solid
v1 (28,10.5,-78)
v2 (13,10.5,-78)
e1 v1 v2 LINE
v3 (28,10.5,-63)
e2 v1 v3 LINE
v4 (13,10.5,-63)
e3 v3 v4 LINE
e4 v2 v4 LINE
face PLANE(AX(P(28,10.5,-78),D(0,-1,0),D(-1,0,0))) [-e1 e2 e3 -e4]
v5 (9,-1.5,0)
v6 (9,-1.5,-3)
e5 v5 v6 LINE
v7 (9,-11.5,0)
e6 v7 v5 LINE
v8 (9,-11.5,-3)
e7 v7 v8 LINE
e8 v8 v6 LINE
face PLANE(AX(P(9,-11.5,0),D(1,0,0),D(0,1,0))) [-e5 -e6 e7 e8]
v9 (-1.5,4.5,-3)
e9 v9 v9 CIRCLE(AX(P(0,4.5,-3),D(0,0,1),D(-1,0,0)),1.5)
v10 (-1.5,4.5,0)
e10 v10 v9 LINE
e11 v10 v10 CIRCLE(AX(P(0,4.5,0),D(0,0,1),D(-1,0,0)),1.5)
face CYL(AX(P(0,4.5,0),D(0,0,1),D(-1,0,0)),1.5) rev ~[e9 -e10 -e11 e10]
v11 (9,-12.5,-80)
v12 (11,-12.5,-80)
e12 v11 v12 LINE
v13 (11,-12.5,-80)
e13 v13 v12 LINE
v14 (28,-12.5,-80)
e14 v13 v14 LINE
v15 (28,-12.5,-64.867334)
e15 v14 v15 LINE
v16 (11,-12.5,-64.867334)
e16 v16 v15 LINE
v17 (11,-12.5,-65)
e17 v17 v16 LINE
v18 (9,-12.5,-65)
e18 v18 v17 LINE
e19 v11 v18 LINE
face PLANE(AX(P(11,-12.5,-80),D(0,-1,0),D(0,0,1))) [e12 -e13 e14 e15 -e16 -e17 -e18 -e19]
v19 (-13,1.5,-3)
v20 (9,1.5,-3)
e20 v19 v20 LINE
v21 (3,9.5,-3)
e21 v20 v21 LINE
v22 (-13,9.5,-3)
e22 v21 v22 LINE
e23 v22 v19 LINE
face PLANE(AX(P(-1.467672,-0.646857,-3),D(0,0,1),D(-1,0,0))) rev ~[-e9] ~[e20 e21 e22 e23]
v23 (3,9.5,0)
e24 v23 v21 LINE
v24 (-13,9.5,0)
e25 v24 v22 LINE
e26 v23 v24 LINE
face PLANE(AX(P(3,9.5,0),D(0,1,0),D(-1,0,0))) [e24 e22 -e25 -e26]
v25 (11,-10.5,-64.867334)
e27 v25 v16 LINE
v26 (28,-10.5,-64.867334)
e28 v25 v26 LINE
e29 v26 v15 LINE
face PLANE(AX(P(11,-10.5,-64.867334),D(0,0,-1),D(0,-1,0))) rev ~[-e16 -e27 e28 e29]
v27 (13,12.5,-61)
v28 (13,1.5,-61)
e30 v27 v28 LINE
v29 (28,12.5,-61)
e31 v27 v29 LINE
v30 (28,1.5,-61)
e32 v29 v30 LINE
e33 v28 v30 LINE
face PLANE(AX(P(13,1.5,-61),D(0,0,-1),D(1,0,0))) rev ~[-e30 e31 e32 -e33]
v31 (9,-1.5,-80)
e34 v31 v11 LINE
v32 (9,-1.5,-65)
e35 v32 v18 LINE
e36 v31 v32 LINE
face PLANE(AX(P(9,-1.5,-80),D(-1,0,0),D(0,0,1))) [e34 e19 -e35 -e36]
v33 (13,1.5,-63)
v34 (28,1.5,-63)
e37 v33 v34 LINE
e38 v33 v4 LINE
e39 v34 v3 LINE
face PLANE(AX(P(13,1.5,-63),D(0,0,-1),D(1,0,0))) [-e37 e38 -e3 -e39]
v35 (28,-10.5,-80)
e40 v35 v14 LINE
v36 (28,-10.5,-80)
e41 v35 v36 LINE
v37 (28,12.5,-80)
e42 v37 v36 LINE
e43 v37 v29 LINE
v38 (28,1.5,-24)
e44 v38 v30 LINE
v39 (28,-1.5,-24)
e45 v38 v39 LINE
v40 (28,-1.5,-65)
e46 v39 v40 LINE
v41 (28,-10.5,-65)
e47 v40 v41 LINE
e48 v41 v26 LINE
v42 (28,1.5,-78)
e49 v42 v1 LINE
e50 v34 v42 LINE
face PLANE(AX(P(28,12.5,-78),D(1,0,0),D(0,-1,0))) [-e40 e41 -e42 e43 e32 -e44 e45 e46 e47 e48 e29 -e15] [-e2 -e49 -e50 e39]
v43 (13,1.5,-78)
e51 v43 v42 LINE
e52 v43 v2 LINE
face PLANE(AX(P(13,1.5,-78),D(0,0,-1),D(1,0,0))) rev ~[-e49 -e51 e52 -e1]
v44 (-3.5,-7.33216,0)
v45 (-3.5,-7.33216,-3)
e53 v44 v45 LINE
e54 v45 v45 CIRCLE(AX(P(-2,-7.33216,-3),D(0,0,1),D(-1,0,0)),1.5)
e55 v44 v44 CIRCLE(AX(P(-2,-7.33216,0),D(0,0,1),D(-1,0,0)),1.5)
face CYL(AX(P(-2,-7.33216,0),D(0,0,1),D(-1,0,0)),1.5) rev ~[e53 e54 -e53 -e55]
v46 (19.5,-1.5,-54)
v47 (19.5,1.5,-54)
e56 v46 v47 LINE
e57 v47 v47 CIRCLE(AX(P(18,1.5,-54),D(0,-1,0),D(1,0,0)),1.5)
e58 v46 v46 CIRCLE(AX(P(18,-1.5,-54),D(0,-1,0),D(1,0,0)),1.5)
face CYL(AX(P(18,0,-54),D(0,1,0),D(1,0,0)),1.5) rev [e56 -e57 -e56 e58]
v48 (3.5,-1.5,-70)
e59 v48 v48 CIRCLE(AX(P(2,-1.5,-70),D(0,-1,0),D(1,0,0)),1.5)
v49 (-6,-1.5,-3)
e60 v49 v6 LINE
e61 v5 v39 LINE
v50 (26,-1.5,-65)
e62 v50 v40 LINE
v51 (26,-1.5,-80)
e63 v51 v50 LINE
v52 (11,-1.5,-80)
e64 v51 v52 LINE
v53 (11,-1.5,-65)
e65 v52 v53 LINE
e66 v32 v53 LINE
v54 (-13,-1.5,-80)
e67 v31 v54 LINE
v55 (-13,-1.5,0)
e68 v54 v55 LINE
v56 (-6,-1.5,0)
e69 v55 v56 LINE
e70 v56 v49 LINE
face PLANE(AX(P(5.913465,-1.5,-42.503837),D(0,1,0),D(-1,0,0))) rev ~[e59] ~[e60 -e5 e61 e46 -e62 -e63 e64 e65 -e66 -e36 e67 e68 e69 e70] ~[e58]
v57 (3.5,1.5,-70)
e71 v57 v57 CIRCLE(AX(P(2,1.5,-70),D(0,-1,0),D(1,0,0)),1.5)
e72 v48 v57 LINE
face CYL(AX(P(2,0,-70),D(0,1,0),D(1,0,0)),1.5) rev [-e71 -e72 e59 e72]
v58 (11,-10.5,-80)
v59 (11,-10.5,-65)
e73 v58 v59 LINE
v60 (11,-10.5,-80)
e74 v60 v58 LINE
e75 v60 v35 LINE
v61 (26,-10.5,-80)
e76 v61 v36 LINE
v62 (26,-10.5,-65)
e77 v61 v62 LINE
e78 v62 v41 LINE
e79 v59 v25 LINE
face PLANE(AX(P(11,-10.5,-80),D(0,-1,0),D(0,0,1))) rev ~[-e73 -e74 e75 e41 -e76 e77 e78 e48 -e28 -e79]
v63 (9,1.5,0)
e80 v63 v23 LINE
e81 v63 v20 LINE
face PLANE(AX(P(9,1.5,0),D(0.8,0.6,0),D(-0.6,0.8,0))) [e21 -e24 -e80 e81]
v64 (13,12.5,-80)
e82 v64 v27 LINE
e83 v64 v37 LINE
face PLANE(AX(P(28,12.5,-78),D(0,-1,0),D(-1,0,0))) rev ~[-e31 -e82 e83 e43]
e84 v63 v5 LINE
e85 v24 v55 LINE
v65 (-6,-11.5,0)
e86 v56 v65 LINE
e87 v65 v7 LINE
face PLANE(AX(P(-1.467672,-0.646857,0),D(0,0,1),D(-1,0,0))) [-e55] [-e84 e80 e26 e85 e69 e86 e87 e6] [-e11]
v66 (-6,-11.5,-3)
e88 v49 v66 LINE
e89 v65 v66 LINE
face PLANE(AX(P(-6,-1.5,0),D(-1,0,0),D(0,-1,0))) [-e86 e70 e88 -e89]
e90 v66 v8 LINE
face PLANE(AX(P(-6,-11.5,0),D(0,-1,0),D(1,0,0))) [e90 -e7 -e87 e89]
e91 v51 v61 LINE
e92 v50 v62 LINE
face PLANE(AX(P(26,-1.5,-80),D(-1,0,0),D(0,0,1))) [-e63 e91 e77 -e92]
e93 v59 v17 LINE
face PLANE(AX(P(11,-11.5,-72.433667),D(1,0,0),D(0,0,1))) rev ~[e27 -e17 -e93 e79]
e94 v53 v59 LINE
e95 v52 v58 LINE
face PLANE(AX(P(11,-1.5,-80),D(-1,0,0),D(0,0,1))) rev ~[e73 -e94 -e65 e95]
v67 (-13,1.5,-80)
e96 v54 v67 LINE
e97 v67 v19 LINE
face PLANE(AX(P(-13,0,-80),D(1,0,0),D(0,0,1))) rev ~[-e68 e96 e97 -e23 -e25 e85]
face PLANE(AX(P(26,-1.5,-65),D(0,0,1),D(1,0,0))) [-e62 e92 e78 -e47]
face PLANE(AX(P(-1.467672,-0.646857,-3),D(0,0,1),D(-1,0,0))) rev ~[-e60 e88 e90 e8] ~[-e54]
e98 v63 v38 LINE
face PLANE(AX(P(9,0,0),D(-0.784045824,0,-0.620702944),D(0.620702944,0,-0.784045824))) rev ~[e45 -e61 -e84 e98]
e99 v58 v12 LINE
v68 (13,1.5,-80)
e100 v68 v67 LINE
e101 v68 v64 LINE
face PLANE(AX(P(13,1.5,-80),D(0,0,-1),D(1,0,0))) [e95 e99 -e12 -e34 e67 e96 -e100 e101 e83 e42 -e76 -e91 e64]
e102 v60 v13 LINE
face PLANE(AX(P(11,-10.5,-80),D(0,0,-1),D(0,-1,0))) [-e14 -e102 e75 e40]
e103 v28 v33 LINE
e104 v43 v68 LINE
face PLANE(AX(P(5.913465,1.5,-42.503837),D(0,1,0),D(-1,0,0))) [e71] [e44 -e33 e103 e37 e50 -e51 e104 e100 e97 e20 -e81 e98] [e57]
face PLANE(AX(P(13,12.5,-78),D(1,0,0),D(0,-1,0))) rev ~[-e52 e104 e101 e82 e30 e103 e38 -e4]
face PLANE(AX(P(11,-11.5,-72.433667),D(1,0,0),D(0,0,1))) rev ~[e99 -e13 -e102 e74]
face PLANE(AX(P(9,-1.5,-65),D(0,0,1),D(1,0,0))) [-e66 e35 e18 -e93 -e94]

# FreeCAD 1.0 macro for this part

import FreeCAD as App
import Part
import Sketcher

V = App.Vector

doc = App.newDocument("Part")
body = doc.addObject("PartDesign::Body", "Body")

sketch1 = body.newObject("Sketcher::SketchObject", "Sketch")
sketch1.AttachmentSupport = (doc.getObject("XZ_Plane"), [""])
sketch1.MapMode = "FlatFace"
sketch1.addGeometry([
    Part.LineSegment(V(28, -80, 0), V(28, -24, 0)),
    Part.LineSegment(V(28, -24, 0), V(9, 0, 0)),
    Part.LineSegment(V(9, 0, 0), V(-13, 0, 0)),
    Part.LineSegment(V(-13, 0, 0), V(-13, -80, 0)),
    Part.LineSegment(V(-13, -80, 0), V(28, -80, 0)),
    Part.Circle(V(2, -70, 0), V(0, 0, 1), 1.5),
    Part.Circle(V(18, -54, 0), V(0, 0, 1), 1.5),
], False)
sketch1.addConstraint([
    Sketcher.Constraint("Coincident", 0, 2, 1, 1),
    Sketcher.Constraint("Coincident", 1, 2, 2, 1),
    Sketcher.Constraint("Coincident", 2, 2, 3, 1),
    Sketcher.Constraint("Coincident", 3, 2, 4, 1),
    Sketcher.Constraint("Coincident", 4, 2, 0, 1),
    Sketcher.Constraint("Vertical", 0),
    Sketcher.Constraint("Horizontal", 2),
    Sketcher.Constraint("Vertical", 3),
    Sketcher.Constraint("Horizontal", 4),
    Sketcher.Constraint("Equal", 5, 6),
    Sketcher.Constraint("PointOnObject", 1, 2, -1),
    Sketcher.Constraint("Diameter", 5, 3.0),
    Sketcher.Constraint("DistanceX", 2, 2, 2, 1, 22.0),
    Sketcher.Constraint("DistanceX", 4, 1, 4, 2, 41.0),
    Sketcher.Constraint("DistanceY", 0, 1, 0, 2, 56.0),
    Sketcher.Constraint("DistanceY", 3, 2, 3, 1, 80.0),
    Sketcher.Constraint("DistanceX", -1, 1, 5, 3, 2.0),
    Sketcher.Constraint("DistanceY", 5, 3, -1, 1, 70.0),
    Sketcher.Constraint("DistanceX", -1, 1, 6, 3, 18.0),
    Sketcher.Constraint("DistanceY", 6, 3, -1, 1, 54.0),
    Sketcher.Constraint("DistanceX", -1, 1, 0, 2, 28.0),
])
pad1 = body.newObject("PartDesign::Pad", "Pad")
pad1.Profile = sketch1
pad1.Length = 3
pad1.Midplane = True

sketch2 = body.newObject("Sketcher::SketchObject", "Sketch001")
sketch2.AttachmentSupport = (doc.getObject("XY_Plane"), [""])
sketch2.MapMode = "FlatFace"
sketch2.addGeometry([
    Part.LineSegment(V(9, 1.5, 0), V(3, 9.5, 0)),
    Part.LineSegment(V(3, 9.5, 0), V(-13, 9.5, 0)),
    Part.LineSegment(V(-13, 9.5, 0), V(-13, 1.5, 0)),
    Part.LineSegment(V(-13, 1.5, 0), V(-6, -1.5, 0)),
    Part.LineSegment(V(-6, -1.5, 0), V(-6, -11.5, 0)),
    Part.LineSegment(V(-6, -11.5, 0), V(9, -11.5, 0)),
    Part.LineSegment(V(9, -11.5, 0), V(9, 1.5, 0)),
    Part.Circle(V(0, 4.5, 0), V(0, 0, 1), 1.5),
    Part.Circle(V(-2, -7.33216, 0), V(0, 0, 1), 1.5),
], False)
sketch2.addConstraint([
    Sketcher.Constraint("Coincident", 0, 2, 1, 1),
    Sketcher.Constraint("Coincident", 1, 2, 2, 1),
    Sketcher.Constraint("Coincident", 2, 2, 3, 1),
    Sketcher.Constraint("Coincident", 3, 2, 4, 1),
    Sketcher.Constraint("Coincident", 4, 2, 5, 1),
    Sketcher.Constraint("Coincident", 5, 2, 6, 1),
    Sketcher.Constraint("Coincident", 6, 2, 0, 1),
    Sketcher.Constraint("Horizontal", 1),
    Sketcher.Constraint("Vertical", 2),
    Sketcher.Constraint("Vertical", 4),
    Sketcher.Constraint("Horizontal", 5),
    Sketcher.Constraint("Vertical", 6),
    Sketcher.Constraint("Equal", 7, 8),
    Sketcher.Constraint("PointOnObject", 7, 3, -2),
    Sketcher.Constraint("Horizontal", 2, 2, 6, 2),
    Sketcher.Constraint("Diameter", 7, 3.0),
    Sketcher.Constraint("DistanceX", 1, 2, 1, 1, 16.0),
    Sketcher.Constraint("DistanceX", 5, 1, 5, 2, 15.0),
    Sketcher.Constraint("DistanceY", 2, 2, 2, 1, 8.0),
    Sketcher.Constraint("DistanceY", 4, 2, 4, 1, 10.0),
    Sketcher.Constraint("DistanceY", 6, 1, 6, 2, 13.0),
    Sketcher.Constraint("Distance", 0, 10.0),
    Sketcher.Constraint("DistanceX", 8, 3, -1, 1, 2.0),
    Sketcher.Constraint("DistanceX", -1, 1, 0, 2, 3.0),
    Sketcher.Constraint("DistanceY", 7, 3, 0, 2, 5.0),
    Sketcher.Constraint("DistanceY", -1, 1, 7, 3, 4.5),
    Sketcher.Constraint("DistanceY", 8, 3, -1, 1, 7.33216),
])
pad2 = body.newObject("PartDesign::Pad", "Pad001")
pad2.Profile = sketch2
pad2.Length = 3
pad2.Reversed = True

sketch3 = body.newObject("Sketcher::SketchObject", "Sketch002")
sketch3.AttachmentSupport = (doc.getObject("XZ_Plane"), [""])
sketch3.MapMode = "FlatFace"
sketch3.AttachmentOffset = App.Placement(V(0, 0, 1.5), App.Rotation())
sketch3.addGeometry([
    Part.LineSegment(V(26, -65, 0), V(26, -80, 0)),
    Part.LineSegment(V(26, -80, 0), V(28, -80, 0)),
    Part.LineSegment(V(28, -80, 0), V(28, -65, 0)),
    Part.LineSegment(V(28, -65, 0), V(26, -65, 0)),
    Part.LineSegment(V(9, -65, 0), V(9, -80, 0)),
    Part.LineSegment(V(9, -80, 0), V(11, -80, 0)),
    Part.LineSegment(V(11, -80, 0), V(11, -65, 0)),
    Part.LineSegment(V(11, -65, 0), V(9, -65, 0)),
], False)
sketch3.addConstraint([
    Sketcher.Constraint("Coincident", 0, 2, 1, 1),
    Sketcher.Constraint("Coincident", 1, 2, 2, 1),
    Sketcher.Constraint("Coincident", 2, 2, 3, 1),
    Sketcher.Constraint("Coincident", 3, 2, 0, 1),
    Sketcher.Constraint("Coincident", 4, 2, 5, 1),
    Sketcher.Constraint("Coincident", 5, 2, 6, 1),
    Sketcher.Constraint("Coincident", 6, 2, 7, 1),
    Sketcher.Constraint("Coincident", 7, 2, 4, 1),
    Sketcher.Constraint("Vertical", 0),
    Sketcher.Constraint("Horizontal", 1),
    Sketcher.Constraint("Vertical", 2),
    Sketcher.Constraint("Horizontal", 3),
    Sketcher.Constraint("Vertical", 4),
    Sketcher.Constraint("Horizontal", 5),
    Sketcher.Constraint("Vertical", 6),
    Sketcher.Constraint("Horizontal", 7),
    Sketcher.Constraint("Horizontal", 1, 2, 4, 2),
    Sketcher.Constraint("Horizontal", 3, 2, 6, 2),
    Sketcher.Constraint("Equal", 3, 5),
    Sketcher.Constraint("DistanceX", 1, 1, 1, 2, 2.0),
    Sketcher.Constraint("DistanceY", 0, 2, 0, 1, 15.0),
    Sketcher.Constraint("DistanceX", -1, 1, 0, 2, 26.0),
    Sketcher.Constraint("DistanceY", 0, 2, -1, 1, 80.0),
    Sketcher.Constraint("DistanceX", -1, 1, 4, 2, 9.0),
])
pad3 = body.newObject("PartDesign::Pad", "Pad002")
pad3.Profile = sketch3
pad3.Length = 11

sketch4 = body.newObject("Sketcher::SketchObject", "Sketch003")
sketch4.AttachmentSupport = (doc.getObject("YZ_Plane"), [""])
sketch4.MapMode = "FlatFace"
sketch4.AttachmentOffset = App.Placement(V(0, 0, 11), App.Rotation())
sketch4.addGeometry([
    Part.LineSegment(V(-12.5, -80, 0), V(-10.5, -80, 0)),
    Part.LineSegment(V(-10.5, -80, 0), V(-10.5, -64.867334, 0)),
    Part.LineSegment(V(-10.5, -64.867334, 0), V(-12.5, -64.867334, 0)),
    Part.LineSegment(V(-12.5, -64.867334, 0), V(-12.5, -80, 0)),
], False)
sketch4.addConstraint([
    Sketcher.Constraint("Coincident", 0, 2, 1, 1),
    Sketcher.Constraint("Coincident", 1, 2, 2, 1),
    Sketcher.Constraint("Coincident", 2, 2, 3, 1),
    Sketcher.Constraint("Coincident", 3, 2, 0, 1),
    Sketcher.Constraint("Horizontal", 0),
    Sketcher.Constraint("Vertical", 1),
    Sketcher.Constraint("Horizontal", 2),
    Sketcher.Constraint("Vertical", 3),
    Sketcher.Constraint("DistanceX", 0, 1, 0, 2, 2.0),
    Sketcher.Constraint("DistanceY", 0, 2, -1, 1, 80.0),
    Sketcher.Constraint("DistanceX", 0, 2, -1, 1, 10.5),
    Sketcher.Constraint("DistanceY", 1, 1, 1, 2, 15.132667),
])
pad4 = body.newObject("PartDesign::Pad", "Pad003")
pad4.Profile = sketch4
pad4.Length = 17

sketch5 = body.newObject("Sketcher::SketchObject", "Sketch004")
sketch5.AttachmentSupport = (doc.getObject("XZ_Plane"), [""])
sketch5.MapMode = "FlatFace"
sketch5.AttachmentOffset = App.Placement(V(0, 0, -1.5), App.Rotation())
sketch5.addGeometry([
    Part.LineSegment(V(13, -80, 0), V(13, -78, 0)),
    Part.LineSegment(V(13, -78, 0), V(28, -78, 0)),
    Part.LineSegment(V(28, -78, 0), V(28, -80, 0)),
    Part.LineSegment(V(28, -80, 0), V(13, -80, 0)),
    Part.LineSegment(V(13, -63, 0), V(13, -61, 0)),
    Part.LineSegment(V(13, -61, 0), V(28, -61, 0)),
    Part.LineSegment(V(28, -61, 0), V(28, -63, 0)),
    Part.LineSegment(V(28, -63, 0), V(13, -63, 0)),
], False)
sketch5.addConstraint([
    Sketcher.Constraint("Coincident", 0, 2, 1, 1),
    Sketcher.Constraint("Coincident", 1, 2, 2, 1),
    Sketcher.Constraint("Coincident", 2, 2, 3, 1),
    Sketcher.Constraint("Coincident", 3, 2, 0, 1),
    Sketcher.Constraint("Coincident", 4, 2, 5, 1),
    Sketcher.Constraint("Coincident", 5, 2, 6, 1),
    Sketcher.Constraint("Coincident", 6, 2, 7, 1),
    Sketcher.Constraint("Coincident", 7, 2, 4, 1),
    Sketcher.Constraint("Vertical", 0),
    Sketcher.Constraint("Horizontal", 1),
    Sketcher.Constraint("Vertical", 2),
    Sketcher.Constraint("Horizontal", 3),
    Sketcher.Constraint("Vertical", 4),
    Sketcher.Constraint("Horizontal", 5),
    Sketcher.Constraint("Vertical", 6),
    Sketcher.Constraint("Horizontal", 7),
    Sketcher.Constraint("Vertical", 3, 2, 4, 2),
    Sketcher.Constraint("Vertical", 2, 2, 5, 2),
    Sketcher.Constraint("Equal", 2, 4),
    Sketcher.Constraint("DistanceX", 1, 1, 1, 2, 15.0),
    Sketcher.Constraint("DistanceY", 0, 1, 0, 2, 2.0),
    Sketcher.Constraint("DistanceX", -1, 1, 0, 2, 13.0),
    Sketcher.Constraint("DistanceY", 0, 2, -1, 1, 78.0),
    Sketcher.Constraint("DistanceY", 4, 2, -1, 1, 61.0),
])
pad5 = body.newObject("PartDesign::Pad", "Pad004")
pad5.Profile = sketch5
pad5.Length = 11
pad5.Reversed = True

sketch6 = body.newObject("Sketcher::SketchObject", "Sketch005")
sketch6.AttachmentSupport = (doc.getObject("XY_Plane"), [""])
sketch6.MapMode = "FlatFace"
sketch6.AttachmentOffset = App.Placement(V(0, 0, -78), App.Rotation())
sketch6.addGeometry([
    Part.LineSegment(V(28, 10.5, 0), V(28, 12.5, 0)),
    Part.LineSegment(V(28, 12.5, 0), V(13, 12.5, 0)),
    Part.LineSegment(V(13, 12.5, 0), V(13, 10.5, 0)),
    Part.LineSegment(V(13, 10.5, 0), V(28, 10.5, 0)),
], False)
sketch6.addConstraint([
    Sketcher.Constraint("Coincident", 0, 2, 1, 1),
    Sketcher.Constraint("Coincident", 1, 2, 2, 1),
    Sketcher.Constraint("Coincident", 2, 2, 3, 1),
    Sketcher.Constraint("Coincident", 3, 2, 0, 1),
    Sketcher.Constraint("Vertical", 0),
    Sketcher.Constraint("Horizontal", 1),
    Sketcher.Constraint("Vertical", 2),
    Sketcher.Constraint("Horizontal", 3),
    Sketcher.Constraint("DistanceX", 1, 2, 1, 1, 15.0),
    Sketcher.Constraint("DistanceY", 0, 1, 0, 2, 2.0),
    Sketcher.Constraint("DistanceX", -1, 1, 0, 2, 28.0),
    Sketcher.Constraint("DistanceY", -1, 1, 0, 2, 12.5),
])
pad6 = body.newObject("PartDesign::Pad", "Pad005")
pad6.Profile = sketch6
pad6.Length = 17

doc.recompute()
